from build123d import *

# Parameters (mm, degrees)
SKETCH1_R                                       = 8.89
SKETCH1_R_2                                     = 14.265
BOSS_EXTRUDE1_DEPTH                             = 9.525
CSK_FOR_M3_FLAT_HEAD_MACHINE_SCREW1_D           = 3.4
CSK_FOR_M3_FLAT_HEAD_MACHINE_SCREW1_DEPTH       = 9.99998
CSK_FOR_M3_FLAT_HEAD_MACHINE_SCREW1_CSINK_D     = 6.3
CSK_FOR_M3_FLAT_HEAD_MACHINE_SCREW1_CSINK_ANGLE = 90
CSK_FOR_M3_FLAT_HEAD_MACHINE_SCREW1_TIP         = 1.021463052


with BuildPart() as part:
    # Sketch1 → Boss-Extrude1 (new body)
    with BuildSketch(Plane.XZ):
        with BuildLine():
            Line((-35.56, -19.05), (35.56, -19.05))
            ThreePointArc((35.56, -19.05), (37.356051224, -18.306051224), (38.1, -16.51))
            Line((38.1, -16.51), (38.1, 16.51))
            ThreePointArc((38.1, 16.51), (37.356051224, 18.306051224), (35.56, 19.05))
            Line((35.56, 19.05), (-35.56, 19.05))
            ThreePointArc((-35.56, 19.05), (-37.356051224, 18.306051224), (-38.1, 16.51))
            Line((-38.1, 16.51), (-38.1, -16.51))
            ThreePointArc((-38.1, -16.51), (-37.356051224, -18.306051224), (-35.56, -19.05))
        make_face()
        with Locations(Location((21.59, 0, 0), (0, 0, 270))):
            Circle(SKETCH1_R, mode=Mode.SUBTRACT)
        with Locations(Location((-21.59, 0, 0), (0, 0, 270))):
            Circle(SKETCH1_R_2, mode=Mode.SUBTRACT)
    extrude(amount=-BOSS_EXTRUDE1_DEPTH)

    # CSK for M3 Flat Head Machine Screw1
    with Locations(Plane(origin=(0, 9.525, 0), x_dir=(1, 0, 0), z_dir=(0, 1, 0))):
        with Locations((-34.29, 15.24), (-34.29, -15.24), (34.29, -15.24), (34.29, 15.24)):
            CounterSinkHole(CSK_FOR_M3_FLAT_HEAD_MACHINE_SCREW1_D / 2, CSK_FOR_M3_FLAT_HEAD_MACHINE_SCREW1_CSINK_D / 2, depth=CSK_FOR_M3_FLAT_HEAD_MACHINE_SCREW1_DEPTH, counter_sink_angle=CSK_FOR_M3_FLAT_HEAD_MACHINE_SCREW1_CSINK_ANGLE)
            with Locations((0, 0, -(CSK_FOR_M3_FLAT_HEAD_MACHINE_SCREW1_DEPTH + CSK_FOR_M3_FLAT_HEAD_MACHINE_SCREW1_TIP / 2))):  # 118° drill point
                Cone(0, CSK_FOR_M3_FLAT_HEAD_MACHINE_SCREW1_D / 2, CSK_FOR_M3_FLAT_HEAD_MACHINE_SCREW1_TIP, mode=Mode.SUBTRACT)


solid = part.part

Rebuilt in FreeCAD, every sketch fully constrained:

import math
import FreeCAD as App
import Part
import Sketcher
Q = App.Units.Quantity

doc = App.newDocument("Part")
body = doc.addObject("PartDesign::Body", "Body")

sketch1 = doc.addObject("Sketcher::SketchObject", "Sketch")
body.addObject(sketch1)
sketch1.AttachmentSupport = (doc.XZ_Plane, [""])
sketch1.MapMode = "FlatFace"
sketch1.addGeometry([
    Part.LineSegment(App.Vector(-35.6, -19.1, 0), App.Vector(35.6, -19.1, 0)),
    Part.ArcOfCircle(Part.Circle(App.Vector(35.6, -16.5, 0), App.Vector(0, 0, 1), 2.5), math.radians(-90), math.radians(0)),
    Part.LineSegment(App.Vector(38.1, -16.5, 0), App.Vector(38.1, 16.5, 0)),
    Part.ArcOfCircle(Part.Circle(App.Vector(35.6, 16.5, 0), App.Vector(0, 0, 1), 2.5), math.radians(0), math.radians(90)),
    Part.LineSegment(App.Vector(35.6, 19.1, 0), App.Vector(-35.6, 19.1, 0)),
    Part.ArcOfCircle(Part.Circle(App.Vector(-35.6, 16.5, 0), App.Vector(0, 0, 1), 2.5), math.radians(90), math.radians(180)),
    Part.LineSegment(App.Vector(-38.1, 16.5, 0), App.Vector(-38.1, -16.5, 0)),
    Part.ArcOfCircle(Part.Circle(App.Vector(-35.6, -16.5, 0), App.Vector(0, 0, 1), 2.5), math.radians(-180), math.radians(-90)),
    Part.Circle(App.Vector(-21.6, 0, 0), App.Vector(0, 0, 1), 14.3),
    Part.Circle(App.Vector(21.6, 0, 0), App.Vector(0, 0, 1), 8.9),
], False)
sketch1.addConstraint([
    Sketcher.Constraint("Tangent", 0, 2, 1, 1),
    Sketcher.Constraint("Tangent", 1, 2, 2, 1),
    Sketcher.Constraint("Tangent", 2, 2, 3, 1),
    Sketcher.Constraint("Tangent", 3, 2, 4, 1),
    Sketcher.Constraint("Tangent", 4, 2, 5, 1),
    Sketcher.Constraint("Tangent", 5, 2, 6, 1),
    Sketcher.Constraint("Tangent", 6, 2, 7, 1),
    Sketcher.Constraint("Tangent", 7, 2, 0, 1),
    Sketcher.Constraint("Horizontal", 0),
    Sketcher.Constraint("Vertical", 2),
    Sketcher.Constraint("Horizontal", 4),
    Sketcher.Constraint("Vertical", 6),
    Sketcher.Constraint("Equal", 1, 3),
    Sketcher.Constraint("Equal", 3, 5),
    Sketcher.Constraint("Equal", 5, 7),
    Sketcher.Constraint("Symmetric", 1, 3, 5, 3, -1, 1),
    Sketcher.Constraint("Symmetric", 8, 3, 9, 3, -1, 1),
    Sketcher.Constraint("PointOnObject", 8, 3, -1),
    Sketcher.Constraint("Diameter", 9, Q("0.7 in")),
    Sketcher.Constraint("Radius", 1, Q("0.1 in")),
    Sketcher.Constraint("DistanceX", 0, 1, 0, 2, Q("2.8 in")),
    Sketcher.Constraint("DistanceY", 2, 1, 2, 2, Q("1.3 in")),
    Sketcher.Constraint("DistanceX", 8, 3, 9, 3, Q("1.7 in")),
    Sketcher.Constraint("Diameter", 8, Q("28.53 mm")),
])
pad1 = doc.addObject("PartDesign::Pad", "Pad")
body.addObject(pad1)
pad1.Profile = sketch1
pad1.Length = Q("0.375 in")
pad1.Reversed = True

sketch2 = doc.addObject("Sketcher::SketchObject", "Sketch001")
body.addObject(sketch2)
sketch2.AttachmentSupport = (doc.XZ_Plane, [""])
sketch2.MapMode = "FlatFace"
sketch2.AttachmentOffset = App.Placement(App.Vector(0, 0, -0.375 * 25.4), App.Rotation())
sketch2.addGeometry([
    Part.Circle(App.Vector(-34.3, -15.2, 0), App.Vector(0, 0, 1), 1.7),
    Part.Circle(App.Vector(-34.3, 15.2, 0), App.Vector(0, 0, 1), 1.7),
    Part.Circle(App.Vector(34.3, 15.2, 0), App.Vector(0, 0, 1), 1.7),
    Part.Circle(App.Vector(34.3, -15.2, 0), App.Vector(0, 0, 1), 1.7),
], False)
sketch2.addConstraint([
    Sketcher.Constraint("Equal", 0, 1),
    Sketcher.Constraint("Equal", 1, 2),
    Sketcher.Constraint("Equal", 2, 3),
    Sketcher.Constraint("Symmetric", 0, 3, 2, 3, -1, 1),
    Sketcher.Constraint("Symmetric", 1, 3, 3, 3, -1, 1),
    Sketcher.Constraint("Symmetric", 1, 3, 2, 3, -2),
    Sketcher.Constraint("DistanceY", 0, 3, -1, 1, Q("0.6 in")),
    Sketcher.Constraint("DistanceX", 1, 3, 2, 3, Q("2.7 in")),
    Sketcher.Constraint("Diameter", 0, Q("3.4 mm")),
])
doc.recompute()
hole = doc.addObject("PartDesign::Hole", "Hole")
body.addObject(hole)
hole.Profile = sketch2
hole.ThreadType = "None"
hole.Diameter = 3.4
hole.DepthType = "Dimension"
hole.Depth = Q("0.3937 in")
hole.DrillPoint = "Angled"
hole.DrillPointAngle = 118
hole.HoleCutType = "Countersink"
hole.HoleCutDiameter = 6.3
hole.HoleCutCountersinkAngle = 90
hole.Reversed = True

doc.recompute()
